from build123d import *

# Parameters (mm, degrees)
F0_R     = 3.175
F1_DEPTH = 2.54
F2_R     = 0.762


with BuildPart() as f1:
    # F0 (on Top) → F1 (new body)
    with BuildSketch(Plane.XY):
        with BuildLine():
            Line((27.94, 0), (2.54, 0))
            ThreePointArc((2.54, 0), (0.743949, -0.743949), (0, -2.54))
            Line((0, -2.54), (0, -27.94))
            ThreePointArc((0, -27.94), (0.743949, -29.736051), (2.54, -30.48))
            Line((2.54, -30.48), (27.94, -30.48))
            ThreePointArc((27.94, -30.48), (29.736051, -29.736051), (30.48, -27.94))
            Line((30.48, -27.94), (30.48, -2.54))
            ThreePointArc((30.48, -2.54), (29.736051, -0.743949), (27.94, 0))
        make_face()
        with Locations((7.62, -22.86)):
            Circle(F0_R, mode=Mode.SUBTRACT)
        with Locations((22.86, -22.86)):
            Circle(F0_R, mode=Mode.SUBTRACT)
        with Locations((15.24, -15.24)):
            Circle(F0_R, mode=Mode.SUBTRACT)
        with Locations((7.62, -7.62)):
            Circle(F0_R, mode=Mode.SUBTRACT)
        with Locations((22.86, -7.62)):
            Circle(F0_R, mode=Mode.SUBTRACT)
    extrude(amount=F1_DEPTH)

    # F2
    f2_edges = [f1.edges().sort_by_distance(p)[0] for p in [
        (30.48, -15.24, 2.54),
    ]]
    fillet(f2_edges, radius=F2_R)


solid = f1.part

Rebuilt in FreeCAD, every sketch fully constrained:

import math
import FreeCAD as App
import Part
import Sketcher

V = App.Vector
Q = App.Units.Quantity


def edges_at(feature, points):
    """Names of the edges that pass closest to the given points."""
    edges = feature.Shape.Edges
    near = lambda p: min(range(len(edges)), key=lambda i: edges[i].distToShape(Part.Vertex(*p))[0])
    return sorted({f"Edge{near(p) + 1}" for p in points})

doc = App.newDocument("Part")
params = doc.addObject("Spreadsheet::Sheet", "Params")
for row, (alias, value) in enumerate([
    ("sketch1_radius", "0.1 in"),
    ("sketch1_diameter", "0.25 in"),
    ("sketch1_width", "1 in"),
    ("pad1_length", "0.1 in"),
    ("fillet_radius", "0.03 in"),
], start=1):
    params.set(f"A{row}", alias)
    params.set(f"B{row}", "=" + value)
    params.setAlias(f"B{row}", alias)

body = doc.addObject("PartDesign::Body", "Body")

# Sketch on XY plane
sketch1 = body.newObject("Sketcher::SketchObject", "Sketch")
sketch1.AttachmentSupport = (doc.getObject("XY_Plane"), [""])
sketch1.MapMode = "FlatFace"
sketch1.addGeometry(Part.LineSegment(V(27.9, 0, 0), V(2.5, 0, 0)), False)
sketch1.addGeometry(Part.ArcOfCircle(Part.Circle(V(2.5, -2.5, 0), V(0, 0, 1), 2.5), math.radians(90), math.radians(180)), False)
sketch1.addGeometry(Part.LineSegment(V(0, -2.5, 0), V(0, -27.9, 0)), False)
sketch1.addGeometry(Part.ArcOfCircle(Part.Circle(V(2.5, -27.9, 0), V(0, 0, 1), 2.5), math.radians(-180), math.radians(-90)), False)
sketch1.addGeometry(Part.LineSegment(V(2.5, -30.5, 0), V(27.9, -30.5, 0)), False)
sketch1.addGeometry(Part.ArcOfCircle(Part.Circle(V(27.9, -27.9, 0), V(0, 0, 1), 2.5), math.radians(-90), math.radians(0)), False)
sketch1.addGeometry(Part.LineSegment(V(30.5, -27.9, 0), V(30.5, -2.5, 0)), False)
sketch1.addGeometry(Part.ArcOfCircle(Part.Circle(V(27.9, -2.5, 0), V(0, 0, 1), 2.5), math.radians(0), math.radians(90)), False)
sketch1.addGeometry(Part.Circle(V(7.6, -22.9, 0), V(0, 0, 1), 3.2), False)
sketch1.addGeometry(Part.Circle(V(22.9, -22.9, 0), V(0, 0, 1), 3.2), False)
sketch1.addGeometry(Part.Circle(V(7.6, -7.6, 0), V(0, 0, 1), 3.2), False)
sketch1.addGeometry(Part.Circle(V(15.2, -15.2, 0), V(0, 0, 1), 3.2), False)
sketch1.addGeometry(Part.Circle(V(22.9, -7.6, 0), V(0, 0, 1), 3.2), False)
sketch1.addConstraint(Sketcher.Constraint("Tangent", 0, 2, 1, 1))
sketch1.addConstraint(Sketcher.Constraint("Tangent", 1, 2, 2, 1))
sketch1.addConstraint(Sketcher.Constraint("Tangent", 2, 2, 3, 1))
sketch1.addConstraint(Sketcher.Constraint("Tangent", 3, 2, 4, 1))
sketch1.addConstraint(Sketcher.Constraint("Tangent", 4, 2, 5, 1))
sketch1.addConstraint(Sketcher.Constraint("Tangent", 5, 2, 6, 1))
sketch1.addConstraint(Sketcher.Constraint("Tangent", 6, 2, 7, 1))
sketch1.addConstraint(Sketcher.Constraint("Tangent", 7, 2, 0, 1))
sketch1.addConstraint(Sketcher.Constraint("Horizontal", 0))
sketch1.addConstraint(Sketcher.Constraint("Vertical", 2))
sketch1.addConstraint(Sketcher.Constraint("Horizontal", 4))
sketch1.addConstraint(Sketcher.Constraint("Vertical", 6))
sketch1.addConstraint(Sketcher.Constraint("Equal", 1, 3))
sketch1.addConstraint(Sketcher.Constraint("Equal", 3, 5))
sketch1.addConstraint(Sketcher.Constraint("Equal", 5, 7))
sketch1.addConstraint(Sketcher.Constraint("Equal", 8, 9))
sketch1.addConstraint(Sketcher.Constraint("Equal", 9, 10))
sketch1.addConstraint(Sketcher.Constraint("Equal", 10, 11))
sketch1.addConstraint(Sketcher.Constraint("Equal", 11, 12))
sketch1.addConstraint(Sketcher.Constraint("PointOnObject", 0, 2, -1))
sketch1.addConstraint(Sketcher.Constraint("PointOnObject", 1, 2, -2))
sketch1.addConstraint(Sketcher.Constraint("Horizontal", 8, 3, 9, 3))
sketch1.addConstraint(Sketcher.Constraint("Horizontal", 10, 3, 12, 3))
sketch1.addConstraint(Sketcher.Constraint("Vertical", 8, 3, 10, 3))
sketch1.addConstraint(Sketcher.Constraint("Vertical", 9, 3, 12, 3))
sketch1.addConstraint(Sketcher.Constraint("Equal", 4, 2))
sketch1.addConstraint(Sketcher.Constraint("Radius", 1, Q("0.1 in")))
sketch1.addConstraint(Sketcher.Constraint("Diameter", 8, Q("0.25 in")))
sketch1.addConstraint(Sketcher.Constraint("DistanceX", 0, 2, 0, 1, Q("1 in")))
sketch1.addConstraint(Sketcher.Constraint("DistanceX", -1, 1, 8, 3, Q("0.3 in")))
sketch1.addConstraint(Sketcher.Constraint("DistanceY", 8, 3, -1, 1, Q("0.9 in")))
sketch1.addConstraint(Sketcher.Constraint("DistanceX", -1, 1, 9, 3, Q("0.9 in")))
sketch1.addConstraint(Sketcher.Constraint("DistanceY", 10, 3, -1, 1, Q("0.3 in")))
sketch1.addConstraint(Sketcher.Constraint("DistanceX", -1, 1, 11, 3, Q("0.6 in")))
sketch1.addConstraint(Sketcher.Constraint("DistanceY", 11, 3, -1, 1, Q("0.6 in")))
sketch1.setExpression("Constraints[26]", "Params.sketch1_radius")
sketch1.setExpression("Constraints[27]", "Params.sketch1_diameter")
sketch1.setExpression("Constraints[28]", "Params.sketch1_width")
pad1 = body.newObject("PartDesign::Pad", "Pad")
pad1.Profile = sketch1
pad1.setExpression("Length", "Params.pad1_length")
doc.recompute()

fillet = body.newObject("PartDesign::Fillet", "Fillet")
fillet.Base = (pad1, edges_at(pad1, [(30.48, -15.24, 2.54)]))
fillet.setExpression("Radius", "Params.fillet_radius")

doc.recompute()
